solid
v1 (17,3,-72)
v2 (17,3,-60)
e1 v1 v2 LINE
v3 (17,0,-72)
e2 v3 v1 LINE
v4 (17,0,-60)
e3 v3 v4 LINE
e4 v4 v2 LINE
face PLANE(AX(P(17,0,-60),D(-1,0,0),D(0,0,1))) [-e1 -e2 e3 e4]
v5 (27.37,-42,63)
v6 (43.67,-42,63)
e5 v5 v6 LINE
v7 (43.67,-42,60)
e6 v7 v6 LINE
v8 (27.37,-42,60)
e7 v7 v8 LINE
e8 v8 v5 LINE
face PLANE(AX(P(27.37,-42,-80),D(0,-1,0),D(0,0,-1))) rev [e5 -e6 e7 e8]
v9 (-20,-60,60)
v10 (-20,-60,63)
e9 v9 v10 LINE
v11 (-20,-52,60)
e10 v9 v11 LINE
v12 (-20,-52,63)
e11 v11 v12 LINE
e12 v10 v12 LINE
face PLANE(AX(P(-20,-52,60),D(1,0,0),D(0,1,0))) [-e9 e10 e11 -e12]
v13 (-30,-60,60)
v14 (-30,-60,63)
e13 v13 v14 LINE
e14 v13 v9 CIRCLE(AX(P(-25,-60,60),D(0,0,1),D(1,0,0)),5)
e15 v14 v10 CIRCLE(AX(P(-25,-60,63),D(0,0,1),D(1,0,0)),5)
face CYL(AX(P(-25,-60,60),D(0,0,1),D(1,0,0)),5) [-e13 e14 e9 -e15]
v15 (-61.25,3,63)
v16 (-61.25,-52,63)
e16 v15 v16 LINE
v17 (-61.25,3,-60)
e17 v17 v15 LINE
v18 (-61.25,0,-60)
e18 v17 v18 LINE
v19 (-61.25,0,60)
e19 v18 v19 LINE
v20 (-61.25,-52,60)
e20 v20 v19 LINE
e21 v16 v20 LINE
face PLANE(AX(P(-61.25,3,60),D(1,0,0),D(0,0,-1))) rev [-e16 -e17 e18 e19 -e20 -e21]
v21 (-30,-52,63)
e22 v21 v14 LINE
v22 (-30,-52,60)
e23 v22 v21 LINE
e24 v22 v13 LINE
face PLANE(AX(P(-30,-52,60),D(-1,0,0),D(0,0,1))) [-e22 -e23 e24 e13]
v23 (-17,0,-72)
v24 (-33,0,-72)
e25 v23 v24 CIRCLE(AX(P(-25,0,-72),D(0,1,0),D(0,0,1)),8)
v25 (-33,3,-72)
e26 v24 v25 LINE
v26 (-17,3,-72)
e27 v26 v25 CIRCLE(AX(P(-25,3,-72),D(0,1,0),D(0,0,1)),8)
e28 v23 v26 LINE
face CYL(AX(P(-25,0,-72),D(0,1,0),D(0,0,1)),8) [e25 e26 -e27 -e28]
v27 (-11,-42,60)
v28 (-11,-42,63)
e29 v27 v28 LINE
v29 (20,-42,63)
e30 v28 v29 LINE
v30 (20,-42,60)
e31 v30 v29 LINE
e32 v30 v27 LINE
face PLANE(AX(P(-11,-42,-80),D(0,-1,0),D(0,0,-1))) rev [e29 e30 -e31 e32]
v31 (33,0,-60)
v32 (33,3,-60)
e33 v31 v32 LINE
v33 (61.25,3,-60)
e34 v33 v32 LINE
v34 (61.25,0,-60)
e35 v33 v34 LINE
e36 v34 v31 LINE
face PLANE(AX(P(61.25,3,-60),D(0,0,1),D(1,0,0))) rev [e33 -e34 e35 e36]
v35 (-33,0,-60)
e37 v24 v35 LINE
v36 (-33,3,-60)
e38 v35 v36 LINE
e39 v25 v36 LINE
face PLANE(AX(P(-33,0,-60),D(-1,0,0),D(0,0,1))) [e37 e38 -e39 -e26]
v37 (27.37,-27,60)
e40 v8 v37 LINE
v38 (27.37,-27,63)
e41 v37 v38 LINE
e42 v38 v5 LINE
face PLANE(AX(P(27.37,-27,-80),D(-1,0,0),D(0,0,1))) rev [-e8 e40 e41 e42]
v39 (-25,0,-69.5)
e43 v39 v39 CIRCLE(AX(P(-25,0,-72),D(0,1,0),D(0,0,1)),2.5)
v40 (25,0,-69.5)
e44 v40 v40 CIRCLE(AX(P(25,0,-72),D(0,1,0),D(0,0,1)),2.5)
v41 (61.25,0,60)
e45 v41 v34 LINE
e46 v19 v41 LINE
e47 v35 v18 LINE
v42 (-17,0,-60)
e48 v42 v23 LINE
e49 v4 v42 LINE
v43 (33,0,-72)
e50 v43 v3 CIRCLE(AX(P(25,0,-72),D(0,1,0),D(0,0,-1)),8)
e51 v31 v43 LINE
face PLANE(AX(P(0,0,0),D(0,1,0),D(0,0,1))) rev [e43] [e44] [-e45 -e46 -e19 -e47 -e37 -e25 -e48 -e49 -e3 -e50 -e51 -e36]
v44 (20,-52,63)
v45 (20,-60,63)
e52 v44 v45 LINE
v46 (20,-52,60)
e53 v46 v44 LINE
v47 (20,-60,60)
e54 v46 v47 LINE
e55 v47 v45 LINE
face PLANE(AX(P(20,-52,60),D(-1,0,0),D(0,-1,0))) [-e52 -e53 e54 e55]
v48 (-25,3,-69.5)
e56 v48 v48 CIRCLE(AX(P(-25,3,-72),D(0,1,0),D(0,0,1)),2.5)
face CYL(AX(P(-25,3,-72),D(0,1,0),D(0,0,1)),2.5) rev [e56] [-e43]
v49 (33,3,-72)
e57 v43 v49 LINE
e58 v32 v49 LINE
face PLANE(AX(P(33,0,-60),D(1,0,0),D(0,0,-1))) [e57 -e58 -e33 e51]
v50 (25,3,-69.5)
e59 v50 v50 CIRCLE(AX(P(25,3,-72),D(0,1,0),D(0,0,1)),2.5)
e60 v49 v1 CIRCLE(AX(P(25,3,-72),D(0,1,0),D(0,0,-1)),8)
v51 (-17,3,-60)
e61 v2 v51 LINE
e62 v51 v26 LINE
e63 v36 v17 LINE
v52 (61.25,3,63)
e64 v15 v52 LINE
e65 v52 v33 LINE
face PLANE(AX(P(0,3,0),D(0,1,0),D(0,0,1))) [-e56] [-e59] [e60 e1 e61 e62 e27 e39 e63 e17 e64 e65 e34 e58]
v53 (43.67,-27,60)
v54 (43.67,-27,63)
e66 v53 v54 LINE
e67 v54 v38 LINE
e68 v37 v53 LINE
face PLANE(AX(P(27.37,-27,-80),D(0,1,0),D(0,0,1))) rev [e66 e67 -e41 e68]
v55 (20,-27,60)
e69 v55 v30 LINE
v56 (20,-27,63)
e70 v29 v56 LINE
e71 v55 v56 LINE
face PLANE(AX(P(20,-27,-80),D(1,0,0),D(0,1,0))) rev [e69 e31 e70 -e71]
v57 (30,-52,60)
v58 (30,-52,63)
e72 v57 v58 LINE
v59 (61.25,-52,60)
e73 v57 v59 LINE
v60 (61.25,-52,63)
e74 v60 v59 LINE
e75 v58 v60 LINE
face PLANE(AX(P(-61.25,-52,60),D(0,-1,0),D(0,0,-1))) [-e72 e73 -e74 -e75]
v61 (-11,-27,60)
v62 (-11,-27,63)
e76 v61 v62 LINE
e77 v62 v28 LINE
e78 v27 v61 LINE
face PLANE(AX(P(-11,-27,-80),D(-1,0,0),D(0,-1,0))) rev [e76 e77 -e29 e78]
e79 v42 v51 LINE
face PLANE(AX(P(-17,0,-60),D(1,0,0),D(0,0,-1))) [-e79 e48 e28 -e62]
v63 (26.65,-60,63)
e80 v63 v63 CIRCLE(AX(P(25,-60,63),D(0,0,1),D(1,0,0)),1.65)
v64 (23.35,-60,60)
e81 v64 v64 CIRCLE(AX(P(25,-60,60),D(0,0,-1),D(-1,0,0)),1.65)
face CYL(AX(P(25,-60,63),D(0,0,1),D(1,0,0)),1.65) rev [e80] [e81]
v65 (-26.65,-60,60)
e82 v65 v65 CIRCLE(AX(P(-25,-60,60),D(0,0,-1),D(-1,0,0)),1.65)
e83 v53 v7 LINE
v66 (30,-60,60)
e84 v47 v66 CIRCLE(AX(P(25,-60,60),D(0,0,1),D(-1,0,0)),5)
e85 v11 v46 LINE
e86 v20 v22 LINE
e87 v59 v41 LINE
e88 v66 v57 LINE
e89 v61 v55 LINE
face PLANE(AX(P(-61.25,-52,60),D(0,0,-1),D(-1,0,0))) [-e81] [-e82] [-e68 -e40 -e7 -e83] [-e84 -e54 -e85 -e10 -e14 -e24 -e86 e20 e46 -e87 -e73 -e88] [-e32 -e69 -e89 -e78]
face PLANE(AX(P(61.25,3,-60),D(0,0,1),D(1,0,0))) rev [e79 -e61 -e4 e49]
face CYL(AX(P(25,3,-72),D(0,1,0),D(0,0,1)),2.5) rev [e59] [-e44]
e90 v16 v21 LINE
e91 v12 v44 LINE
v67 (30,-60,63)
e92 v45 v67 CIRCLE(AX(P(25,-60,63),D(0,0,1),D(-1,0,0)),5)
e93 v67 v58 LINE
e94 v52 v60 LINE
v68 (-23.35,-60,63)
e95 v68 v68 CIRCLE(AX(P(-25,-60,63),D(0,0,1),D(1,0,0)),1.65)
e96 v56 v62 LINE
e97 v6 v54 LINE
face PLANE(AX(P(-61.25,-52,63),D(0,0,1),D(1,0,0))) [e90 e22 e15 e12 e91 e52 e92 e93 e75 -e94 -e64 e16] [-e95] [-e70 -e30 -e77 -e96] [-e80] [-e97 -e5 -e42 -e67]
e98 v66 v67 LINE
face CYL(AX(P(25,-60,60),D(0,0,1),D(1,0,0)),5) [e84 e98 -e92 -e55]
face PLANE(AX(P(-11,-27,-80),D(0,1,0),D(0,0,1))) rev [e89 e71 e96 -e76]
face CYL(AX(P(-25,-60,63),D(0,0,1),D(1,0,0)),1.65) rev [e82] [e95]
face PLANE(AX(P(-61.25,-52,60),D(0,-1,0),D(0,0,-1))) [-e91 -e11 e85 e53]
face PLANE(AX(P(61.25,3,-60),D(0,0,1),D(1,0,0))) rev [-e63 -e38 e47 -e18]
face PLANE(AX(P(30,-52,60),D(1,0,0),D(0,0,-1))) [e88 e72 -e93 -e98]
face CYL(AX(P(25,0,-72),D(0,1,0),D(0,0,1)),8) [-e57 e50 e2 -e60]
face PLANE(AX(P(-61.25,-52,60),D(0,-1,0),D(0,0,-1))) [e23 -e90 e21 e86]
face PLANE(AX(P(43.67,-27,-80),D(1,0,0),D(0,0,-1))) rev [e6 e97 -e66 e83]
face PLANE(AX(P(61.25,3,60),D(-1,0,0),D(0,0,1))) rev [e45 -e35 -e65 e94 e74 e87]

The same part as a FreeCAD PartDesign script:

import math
import FreeCAD as App
import Part
import Sketcher

V = App.Vector
Q = App.Units.Quantity


def add_polygon(sketch, points):
    """Adds a closed chain of lines whose ends are joined by coincident constraints."""
    first, n = sketch.GeometryCount, len(points)
    for a, b in zip(points, points[1:] + points[:1]):
        sketch.addGeometry(Part.LineSegment(App.Vector(*a, 0), App.Vector(*b, 0)), False)
    for i in range(n):
        sketch.addConstraint(Sketcher.Constraint("Coincident", first + i, 2, first + (i + 1) % n, 1))

doc = App.newDocument("Part")
body = doc.addObject("PartDesign::Body", "Body")

# Sketch on XZ plane
sketch1 = body.newObject("Sketcher::SketchObject", "Sketch")
sketch1.AttachmentSupport = (doc.getObject("XZ_Plane"), [""])
sketch1.MapMode = "FlatFace"
add_polygon(sketch1, [(-61, -60), (-61, 60), (61, 60), (61, -60)])  # lines 0-3
sketch1.addConstraint([
    Sketcher.Constraint("Vertical", 0),
    Sketcher.Constraint("Horizontal", 1),
    Sketcher.Constraint("Vertical", 2),
    Sketcher.Constraint("Horizontal", 3),
    Sketcher.Constraint("Symmetric", 0, 2, 2, 2, -1, 1),
    Sketcher.Constraint("DistanceY", 0, 1, 0, 2, Q("120 mm")),
    Sketcher.Constraint("DistanceX", 1, 1, 1, 2, Q("122.5 mm")),
])
pad1 = body.newObject("PartDesign::Pad", "Pad")
pad1.Profile = sketch1
pad1.Length = 3
pad1.Reversed = True

# Sketch on YZ plane
sketch2 = body.newObject("Sketcher::SketchObject", "Sketch001")
sketch2.AttachmentSupport = (doc.getObject("YZ_Plane"), [""])
sketch2.MapMode = "FlatFace"
add_polygon(sketch2, [(3, 63), (-52, 63), (-52, 60), (3, 60)])  # lines 0-3
sketch2.addConstraint([
    Sketcher.Constraint("Horizontal", 0),
    Sketcher.Constraint("Vertical", 1),
    Sketcher.Constraint("Horizontal", 2),
    Sketcher.Constraint("Vertical", 3),
    Sketcher.Constraint("DistanceX", 0, 2, 0, 1, Q("55 mm")),
    Sketcher.Constraint("DistanceY", 1, 2, 1, 1, Q("3 mm")),
    Sketcher.Constraint("DistanceX", 0, 2, -1, 1, Q("52 mm")),
    Sketcher.Constraint("DistanceY", -1, 1, 0, 2, Q("63 mm")),
])
pad2 = body.newObject("PartDesign::Pad", "Pad001")
pad2.Profile = sketch2
pad2.Type = "TwoLengths"
pad2.Length = 61.25
pad2.Length2 = 61.25

# Sketch on XZ plane
sketch3 = body.newObject("Sketcher::SketchObject", "Sketch002")
sketch3.AttachmentSupport = (doc.getObject("XZ_Plane"), [""])
sketch3.MapMode = "FlatFace"
sketch3.AttachmentOffset = App.Placement(V(0, 0, -3), App.Rotation())
sketch3.addGeometry([
    Part.LineSegment(V(17, -60, 0), V(33, -60, 0)),  # 0
    Part.LineSegment(V(33, -60, 0), V(33, -72, 0)),  # 1
    Part.ArcOfCircle(Part.Circle(V(25, -72, 0), V(0, 0, 1), 8), math.radians(180), math.radians(360)),  # 2
    Part.LineSegment(V(17, -72, 0), V(17, -60, 0)),  # 3
    Part.LineSegment(V(-17, -60, 0), V(-17, -72, 0)),  # 4
    Part.ArcOfCircle(Part.Circle(V(-25, -72, 0), V(0, 0, 1), 8), math.radians(180), math.radians(360)),  # 5
    Part.LineSegment(V(-33, -72, 0), V(-33, -60, 0)),  # 6
    Part.LineSegment(V(-33, -60, 0), V(-17, -60, 0)),  # 7
], False)
sketch3.addConstraint([
    Sketcher.Constraint("Coincident", 0, 2, 1, 1),
    Sketcher.Constraint("Tangent", 1, 2, 2, 2),
    Sketcher.Constraint("Tangent", 2, 1, 3, 1),
    Sketcher.Constraint("Coincident", 3, 2, 0, 1),
    Sketcher.Constraint("Tangent", 4, 2, 5, 2),
    Sketcher.Constraint("Tangent", 5, 1, 6, 1),
    Sketcher.Constraint("Coincident", 6, 2, 7, 1),
    Sketcher.Constraint("Coincident", 7, 2, 4, 1),
    Sketcher.Constraint("Horizontal", 0),
    Sketcher.Constraint("Vertical", 1),
    Sketcher.Constraint("Vertical", 3),
    Sketcher.Constraint("Vertical", 4),
    Sketcher.Constraint("Vertical", 6),
    Sketcher.Constraint("Horizontal", 7),
    Sketcher.Constraint("Equal", 2, 5),
    Sketcher.Constraint("Symmetric", 2, 3, 5, 3, -2),
    Sketcher.Constraint("Horizontal", 3, 2, 6, 2),
    Sketcher.Constraint("Radius", 2, Q("8 mm")),
    Sketcher.Constraint("DistanceY", 1, 2, 1, 1, Q("12 mm")),
    Sketcher.Constraint("DistanceX", -1, 1, 2, 3, Q("25 mm")),
    Sketcher.Constraint("DistanceY", 2, 3, -1, 1, Q("72 mm")),
])
pad3 = body.newObject("PartDesign::Pad", "Pad002")
pad3.Profile = sketch3
pad3.Length = 3

# Sketch on XZ plane
sketch4 = body.newObject("Sketcher::SketchObject", "Sketch003")
sketch4.AttachmentSupport = (doc.getObject("XZ_Plane"), [""])
sketch4.MapMode = "FlatFace"
sketch4.AttachmentOffset = App.Placement(V(0, 0, -3), App.Rotation())
sketch4.addGeometry([
    Part.Circle(V(-25, -72, 0), V(0, 0, 1), 2.5),
    Part.Circle(V(25, -72, 0), V(0, 0, 1), 2.5),
], False)
sketch4.addConstraint([
    Sketcher.Constraint("Equal", 0, 1),
    Sketcher.Constraint("Symmetric", 0, 3, 1, 3, -2),
    Sketcher.Constraint("Diameter", 0, Q("5 mm")),
    Sketcher.Constraint("DistanceX", 0, 3, -1, 1, Q("25 mm")),
    Sketcher.Constraint("DistanceY", 0, 3, -1, 1, Q("72 mm")),
])
doc.recompute()
hole = body.newObject("PartDesign::Hole", "Hole")
hole.Profile = sketch4
hole.ThreadType = "None"
hole.Diameter = 5
hole.DepthType = "ThroughAll"
hole.Reversed = True

# Sketch on XY plane
sketch5 = body.newObject("Sketcher::SketchObject", "Sketch004")
sketch5.AttachmentSupport = (doc.getObject("XY_Plane"), [""])
sketch5.MapMode = "FlatFace"
sketch5.AttachmentOffset = App.Placement(V(0, 0, 63), App.Rotation())
sketch5.addGeometry([
    Part.LineSegment(V(-20, -52, 0), V(-30, -52, 0)),  # 0
    Part.LineSegment(V(-30, -52, 0), V(-30, -60, 0)),  # 1
    Part.ArcOfCircle(Part.Circle(V(-25, -60, 0), V(0, 0, 1), 5), math.radians(180), math.radians(360)),  # 2
    Part.LineSegment(V(-20, -60, 0), V(-20, -52, 0)),  # 3
    Part.LineSegment(V(30, -52, 0), V(20, -52, 0)),  # 4
    Part.LineSegment(V(20, -52, 0), V(20, -60, 0)),  # 5
    Part.ArcOfCircle(Part.Circle(V(25, -60, 0), V(0, 0, 1), 5), math.radians(180), math.radians(360)),  # 6
    Part.LineSegment(V(30, -60, 0), V(30, -52, 0)),  # 7
], False)
sketch5.addConstraint([
    Sketcher.Constraint("Coincident", 0, 2, 1, 1),
    Sketcher.Constraint("Tangent", 1, 2, 2, 1),
    Sketcher.Constraint("Tangent", 2, 2, 3, 1),
    Sketcher.Constraint("Coincident", 3, 2, 0, 1),
    Sketcher.Constraint("Coincident", 4, 2, 5, 1),
    Sketcher.Constraint("Tangent", 5, 2, 6, 1),
    Sketcher.Constraint("Tangent", 6, 2, 7, 1),
    Sketcher.Constraint("Coincident", 7, 2, 4, 1),
    Sketcher.Constraint("Horizontal", 0),
    Sketcher.Constraint("Vertical", 1),
    Sketcher.Constraint("Vertical", 3),
    Sketcher.Constraint("Horizontal", 4),
    Sketcher.Constraint("Vertical", 5),
    Sketcher.Constraint("Vertical", 7),
    Sketcher.Constraint("Equal", 2, 6),
    Sketcher.Constraint("Symmetric", 2, 3, 6, 3, -2),
    Sketcher.Constraint("Horizontal", 3, 2, 4, 2),
    Sketcher.Constraint("Radius", 2, Q("5 mm")),
    Sketcher.Constraint("DistanceY", 1, 2, 1, 1, Q("8 mm")),
    Sketcher.Constraint("DistanceX", 2, 3, -1, 1, Q("25 mm")),
    Sketcher.Constraint("DistanceY", 2, 3, -1, 1, Q("60 mm")),
])
pad4 = body.newObject("PartDesign::Pad", "Pad003")
pad4.Profile = sketch5
pad4.Length = 3
pad4.Reversed = True

# Sketch on XY plane
sketch6 = body.newObject("Sketcher::SketchObject", "Sketch005")
sketch6.AttachmentSupport = (doc.getObject("XY_Plane"), [""])
sketch6.MapMode = "FlatFace"
sketch6.AttachmentOffset = App.Placement(V(0, 0, 63), App.Rotation())
sketch6.addGeometry(Part.Circle(V(-25, -60, 0), V(0, 0, 1), 1.6), False)
sketch6.addConstraint([
    Sketcher.Constraint("Diameter", 0, Q("3.3 mm")),
    Sketcher.Constraint("DistanceX", 0, 3, -1, 1, Q("25 mm")),
    Sketcher.Constraint("DistanceY", 0, 3, -1, 1, Q("60 mm")),
])
doc.recompute()
hole2 = body.newObject("PartDesign::Hole", "Hole001")
hole2.Profile = sketch6
hole2.ThreadType = "None"
hole2.Diameter = 3.3
hole2.DepthType = "ThroughAll"
doc.recompute()

mirrored = body.newObject("PartDesign::Mirrored", "Mirrored")
mirrored.Originals = [hole2]
mirrored.MirrorPlane = (doc.getObject("YZ_Plane"), [""])
body.Tip = mirrored

# Sketch on XY plane
sketch7 = body.newObject("Sketcher::SketchObject", "Sketch006")
sketch7.AttachmentSupport = (doc.getObject("XY_Plane"), [""])
sketch7.MapMode = "FlatFace"
sketch7.AttachmentOffset = App.Placement(V(0, 0, 63), App.Rotation())
add_polygon(sketch7, [(-11, -27), (-11, -42), (20, -42), (20, -27)])  # lines 0-3
add_polygon(sketch7, [(27, -27), (27, -42), (44, -42), (44, -27)])  # lines 4-7
sketch7.addConstraint([
    Sketcher.Constraint("Vertical", 0),
    Sketcher.Constraint("Horizontal", 1),
    Sketcher.Constraint("Vertical", 2),
    Sketcher.Constraint("Horizontal", 3),
    Sketcher.Constraint("Vertical", 4),
    Sketcher.Constraint("Horizontal", 5),
    Sketcher.Constraint("Vertical", 6),
    Sketcher.Constraint("Horizontal", 7),
    Sketcher.Constraint("Horizontal", 1, 2, 4, 2),
    Sketcher.Constraint("Horizontal", 3, 2, 6, 2),
    Sketcher.Constraint("DistanceX", 1, 1, 1, 2, Q("31 mm")),
    Sketcher.Constraint("DistanceY", 0, 2, 0, 1, Q("15 mm")),
    Sketcher.Constraint("DistanceX", 5, 1, 5, 2, Q("16.3 mm")),
    Sketcher.Constraint("DistanceX", 0, 2, -1, 1, Q("11 mm")),
    Sketcher.Constraint("DistanceY", 0, 2, -1, 1, Q("42 mm")),
    Sketcher.Constraint("DistanceX", -1, 1, 4, 2, Q("27.37 mm")),
])
pocket1 = body.newObject("PartDesign::Pocket", "Pocket")
pocket1.Profile = sketch7
pocket1.Type = "ThroughAll"

doc.recompute()
